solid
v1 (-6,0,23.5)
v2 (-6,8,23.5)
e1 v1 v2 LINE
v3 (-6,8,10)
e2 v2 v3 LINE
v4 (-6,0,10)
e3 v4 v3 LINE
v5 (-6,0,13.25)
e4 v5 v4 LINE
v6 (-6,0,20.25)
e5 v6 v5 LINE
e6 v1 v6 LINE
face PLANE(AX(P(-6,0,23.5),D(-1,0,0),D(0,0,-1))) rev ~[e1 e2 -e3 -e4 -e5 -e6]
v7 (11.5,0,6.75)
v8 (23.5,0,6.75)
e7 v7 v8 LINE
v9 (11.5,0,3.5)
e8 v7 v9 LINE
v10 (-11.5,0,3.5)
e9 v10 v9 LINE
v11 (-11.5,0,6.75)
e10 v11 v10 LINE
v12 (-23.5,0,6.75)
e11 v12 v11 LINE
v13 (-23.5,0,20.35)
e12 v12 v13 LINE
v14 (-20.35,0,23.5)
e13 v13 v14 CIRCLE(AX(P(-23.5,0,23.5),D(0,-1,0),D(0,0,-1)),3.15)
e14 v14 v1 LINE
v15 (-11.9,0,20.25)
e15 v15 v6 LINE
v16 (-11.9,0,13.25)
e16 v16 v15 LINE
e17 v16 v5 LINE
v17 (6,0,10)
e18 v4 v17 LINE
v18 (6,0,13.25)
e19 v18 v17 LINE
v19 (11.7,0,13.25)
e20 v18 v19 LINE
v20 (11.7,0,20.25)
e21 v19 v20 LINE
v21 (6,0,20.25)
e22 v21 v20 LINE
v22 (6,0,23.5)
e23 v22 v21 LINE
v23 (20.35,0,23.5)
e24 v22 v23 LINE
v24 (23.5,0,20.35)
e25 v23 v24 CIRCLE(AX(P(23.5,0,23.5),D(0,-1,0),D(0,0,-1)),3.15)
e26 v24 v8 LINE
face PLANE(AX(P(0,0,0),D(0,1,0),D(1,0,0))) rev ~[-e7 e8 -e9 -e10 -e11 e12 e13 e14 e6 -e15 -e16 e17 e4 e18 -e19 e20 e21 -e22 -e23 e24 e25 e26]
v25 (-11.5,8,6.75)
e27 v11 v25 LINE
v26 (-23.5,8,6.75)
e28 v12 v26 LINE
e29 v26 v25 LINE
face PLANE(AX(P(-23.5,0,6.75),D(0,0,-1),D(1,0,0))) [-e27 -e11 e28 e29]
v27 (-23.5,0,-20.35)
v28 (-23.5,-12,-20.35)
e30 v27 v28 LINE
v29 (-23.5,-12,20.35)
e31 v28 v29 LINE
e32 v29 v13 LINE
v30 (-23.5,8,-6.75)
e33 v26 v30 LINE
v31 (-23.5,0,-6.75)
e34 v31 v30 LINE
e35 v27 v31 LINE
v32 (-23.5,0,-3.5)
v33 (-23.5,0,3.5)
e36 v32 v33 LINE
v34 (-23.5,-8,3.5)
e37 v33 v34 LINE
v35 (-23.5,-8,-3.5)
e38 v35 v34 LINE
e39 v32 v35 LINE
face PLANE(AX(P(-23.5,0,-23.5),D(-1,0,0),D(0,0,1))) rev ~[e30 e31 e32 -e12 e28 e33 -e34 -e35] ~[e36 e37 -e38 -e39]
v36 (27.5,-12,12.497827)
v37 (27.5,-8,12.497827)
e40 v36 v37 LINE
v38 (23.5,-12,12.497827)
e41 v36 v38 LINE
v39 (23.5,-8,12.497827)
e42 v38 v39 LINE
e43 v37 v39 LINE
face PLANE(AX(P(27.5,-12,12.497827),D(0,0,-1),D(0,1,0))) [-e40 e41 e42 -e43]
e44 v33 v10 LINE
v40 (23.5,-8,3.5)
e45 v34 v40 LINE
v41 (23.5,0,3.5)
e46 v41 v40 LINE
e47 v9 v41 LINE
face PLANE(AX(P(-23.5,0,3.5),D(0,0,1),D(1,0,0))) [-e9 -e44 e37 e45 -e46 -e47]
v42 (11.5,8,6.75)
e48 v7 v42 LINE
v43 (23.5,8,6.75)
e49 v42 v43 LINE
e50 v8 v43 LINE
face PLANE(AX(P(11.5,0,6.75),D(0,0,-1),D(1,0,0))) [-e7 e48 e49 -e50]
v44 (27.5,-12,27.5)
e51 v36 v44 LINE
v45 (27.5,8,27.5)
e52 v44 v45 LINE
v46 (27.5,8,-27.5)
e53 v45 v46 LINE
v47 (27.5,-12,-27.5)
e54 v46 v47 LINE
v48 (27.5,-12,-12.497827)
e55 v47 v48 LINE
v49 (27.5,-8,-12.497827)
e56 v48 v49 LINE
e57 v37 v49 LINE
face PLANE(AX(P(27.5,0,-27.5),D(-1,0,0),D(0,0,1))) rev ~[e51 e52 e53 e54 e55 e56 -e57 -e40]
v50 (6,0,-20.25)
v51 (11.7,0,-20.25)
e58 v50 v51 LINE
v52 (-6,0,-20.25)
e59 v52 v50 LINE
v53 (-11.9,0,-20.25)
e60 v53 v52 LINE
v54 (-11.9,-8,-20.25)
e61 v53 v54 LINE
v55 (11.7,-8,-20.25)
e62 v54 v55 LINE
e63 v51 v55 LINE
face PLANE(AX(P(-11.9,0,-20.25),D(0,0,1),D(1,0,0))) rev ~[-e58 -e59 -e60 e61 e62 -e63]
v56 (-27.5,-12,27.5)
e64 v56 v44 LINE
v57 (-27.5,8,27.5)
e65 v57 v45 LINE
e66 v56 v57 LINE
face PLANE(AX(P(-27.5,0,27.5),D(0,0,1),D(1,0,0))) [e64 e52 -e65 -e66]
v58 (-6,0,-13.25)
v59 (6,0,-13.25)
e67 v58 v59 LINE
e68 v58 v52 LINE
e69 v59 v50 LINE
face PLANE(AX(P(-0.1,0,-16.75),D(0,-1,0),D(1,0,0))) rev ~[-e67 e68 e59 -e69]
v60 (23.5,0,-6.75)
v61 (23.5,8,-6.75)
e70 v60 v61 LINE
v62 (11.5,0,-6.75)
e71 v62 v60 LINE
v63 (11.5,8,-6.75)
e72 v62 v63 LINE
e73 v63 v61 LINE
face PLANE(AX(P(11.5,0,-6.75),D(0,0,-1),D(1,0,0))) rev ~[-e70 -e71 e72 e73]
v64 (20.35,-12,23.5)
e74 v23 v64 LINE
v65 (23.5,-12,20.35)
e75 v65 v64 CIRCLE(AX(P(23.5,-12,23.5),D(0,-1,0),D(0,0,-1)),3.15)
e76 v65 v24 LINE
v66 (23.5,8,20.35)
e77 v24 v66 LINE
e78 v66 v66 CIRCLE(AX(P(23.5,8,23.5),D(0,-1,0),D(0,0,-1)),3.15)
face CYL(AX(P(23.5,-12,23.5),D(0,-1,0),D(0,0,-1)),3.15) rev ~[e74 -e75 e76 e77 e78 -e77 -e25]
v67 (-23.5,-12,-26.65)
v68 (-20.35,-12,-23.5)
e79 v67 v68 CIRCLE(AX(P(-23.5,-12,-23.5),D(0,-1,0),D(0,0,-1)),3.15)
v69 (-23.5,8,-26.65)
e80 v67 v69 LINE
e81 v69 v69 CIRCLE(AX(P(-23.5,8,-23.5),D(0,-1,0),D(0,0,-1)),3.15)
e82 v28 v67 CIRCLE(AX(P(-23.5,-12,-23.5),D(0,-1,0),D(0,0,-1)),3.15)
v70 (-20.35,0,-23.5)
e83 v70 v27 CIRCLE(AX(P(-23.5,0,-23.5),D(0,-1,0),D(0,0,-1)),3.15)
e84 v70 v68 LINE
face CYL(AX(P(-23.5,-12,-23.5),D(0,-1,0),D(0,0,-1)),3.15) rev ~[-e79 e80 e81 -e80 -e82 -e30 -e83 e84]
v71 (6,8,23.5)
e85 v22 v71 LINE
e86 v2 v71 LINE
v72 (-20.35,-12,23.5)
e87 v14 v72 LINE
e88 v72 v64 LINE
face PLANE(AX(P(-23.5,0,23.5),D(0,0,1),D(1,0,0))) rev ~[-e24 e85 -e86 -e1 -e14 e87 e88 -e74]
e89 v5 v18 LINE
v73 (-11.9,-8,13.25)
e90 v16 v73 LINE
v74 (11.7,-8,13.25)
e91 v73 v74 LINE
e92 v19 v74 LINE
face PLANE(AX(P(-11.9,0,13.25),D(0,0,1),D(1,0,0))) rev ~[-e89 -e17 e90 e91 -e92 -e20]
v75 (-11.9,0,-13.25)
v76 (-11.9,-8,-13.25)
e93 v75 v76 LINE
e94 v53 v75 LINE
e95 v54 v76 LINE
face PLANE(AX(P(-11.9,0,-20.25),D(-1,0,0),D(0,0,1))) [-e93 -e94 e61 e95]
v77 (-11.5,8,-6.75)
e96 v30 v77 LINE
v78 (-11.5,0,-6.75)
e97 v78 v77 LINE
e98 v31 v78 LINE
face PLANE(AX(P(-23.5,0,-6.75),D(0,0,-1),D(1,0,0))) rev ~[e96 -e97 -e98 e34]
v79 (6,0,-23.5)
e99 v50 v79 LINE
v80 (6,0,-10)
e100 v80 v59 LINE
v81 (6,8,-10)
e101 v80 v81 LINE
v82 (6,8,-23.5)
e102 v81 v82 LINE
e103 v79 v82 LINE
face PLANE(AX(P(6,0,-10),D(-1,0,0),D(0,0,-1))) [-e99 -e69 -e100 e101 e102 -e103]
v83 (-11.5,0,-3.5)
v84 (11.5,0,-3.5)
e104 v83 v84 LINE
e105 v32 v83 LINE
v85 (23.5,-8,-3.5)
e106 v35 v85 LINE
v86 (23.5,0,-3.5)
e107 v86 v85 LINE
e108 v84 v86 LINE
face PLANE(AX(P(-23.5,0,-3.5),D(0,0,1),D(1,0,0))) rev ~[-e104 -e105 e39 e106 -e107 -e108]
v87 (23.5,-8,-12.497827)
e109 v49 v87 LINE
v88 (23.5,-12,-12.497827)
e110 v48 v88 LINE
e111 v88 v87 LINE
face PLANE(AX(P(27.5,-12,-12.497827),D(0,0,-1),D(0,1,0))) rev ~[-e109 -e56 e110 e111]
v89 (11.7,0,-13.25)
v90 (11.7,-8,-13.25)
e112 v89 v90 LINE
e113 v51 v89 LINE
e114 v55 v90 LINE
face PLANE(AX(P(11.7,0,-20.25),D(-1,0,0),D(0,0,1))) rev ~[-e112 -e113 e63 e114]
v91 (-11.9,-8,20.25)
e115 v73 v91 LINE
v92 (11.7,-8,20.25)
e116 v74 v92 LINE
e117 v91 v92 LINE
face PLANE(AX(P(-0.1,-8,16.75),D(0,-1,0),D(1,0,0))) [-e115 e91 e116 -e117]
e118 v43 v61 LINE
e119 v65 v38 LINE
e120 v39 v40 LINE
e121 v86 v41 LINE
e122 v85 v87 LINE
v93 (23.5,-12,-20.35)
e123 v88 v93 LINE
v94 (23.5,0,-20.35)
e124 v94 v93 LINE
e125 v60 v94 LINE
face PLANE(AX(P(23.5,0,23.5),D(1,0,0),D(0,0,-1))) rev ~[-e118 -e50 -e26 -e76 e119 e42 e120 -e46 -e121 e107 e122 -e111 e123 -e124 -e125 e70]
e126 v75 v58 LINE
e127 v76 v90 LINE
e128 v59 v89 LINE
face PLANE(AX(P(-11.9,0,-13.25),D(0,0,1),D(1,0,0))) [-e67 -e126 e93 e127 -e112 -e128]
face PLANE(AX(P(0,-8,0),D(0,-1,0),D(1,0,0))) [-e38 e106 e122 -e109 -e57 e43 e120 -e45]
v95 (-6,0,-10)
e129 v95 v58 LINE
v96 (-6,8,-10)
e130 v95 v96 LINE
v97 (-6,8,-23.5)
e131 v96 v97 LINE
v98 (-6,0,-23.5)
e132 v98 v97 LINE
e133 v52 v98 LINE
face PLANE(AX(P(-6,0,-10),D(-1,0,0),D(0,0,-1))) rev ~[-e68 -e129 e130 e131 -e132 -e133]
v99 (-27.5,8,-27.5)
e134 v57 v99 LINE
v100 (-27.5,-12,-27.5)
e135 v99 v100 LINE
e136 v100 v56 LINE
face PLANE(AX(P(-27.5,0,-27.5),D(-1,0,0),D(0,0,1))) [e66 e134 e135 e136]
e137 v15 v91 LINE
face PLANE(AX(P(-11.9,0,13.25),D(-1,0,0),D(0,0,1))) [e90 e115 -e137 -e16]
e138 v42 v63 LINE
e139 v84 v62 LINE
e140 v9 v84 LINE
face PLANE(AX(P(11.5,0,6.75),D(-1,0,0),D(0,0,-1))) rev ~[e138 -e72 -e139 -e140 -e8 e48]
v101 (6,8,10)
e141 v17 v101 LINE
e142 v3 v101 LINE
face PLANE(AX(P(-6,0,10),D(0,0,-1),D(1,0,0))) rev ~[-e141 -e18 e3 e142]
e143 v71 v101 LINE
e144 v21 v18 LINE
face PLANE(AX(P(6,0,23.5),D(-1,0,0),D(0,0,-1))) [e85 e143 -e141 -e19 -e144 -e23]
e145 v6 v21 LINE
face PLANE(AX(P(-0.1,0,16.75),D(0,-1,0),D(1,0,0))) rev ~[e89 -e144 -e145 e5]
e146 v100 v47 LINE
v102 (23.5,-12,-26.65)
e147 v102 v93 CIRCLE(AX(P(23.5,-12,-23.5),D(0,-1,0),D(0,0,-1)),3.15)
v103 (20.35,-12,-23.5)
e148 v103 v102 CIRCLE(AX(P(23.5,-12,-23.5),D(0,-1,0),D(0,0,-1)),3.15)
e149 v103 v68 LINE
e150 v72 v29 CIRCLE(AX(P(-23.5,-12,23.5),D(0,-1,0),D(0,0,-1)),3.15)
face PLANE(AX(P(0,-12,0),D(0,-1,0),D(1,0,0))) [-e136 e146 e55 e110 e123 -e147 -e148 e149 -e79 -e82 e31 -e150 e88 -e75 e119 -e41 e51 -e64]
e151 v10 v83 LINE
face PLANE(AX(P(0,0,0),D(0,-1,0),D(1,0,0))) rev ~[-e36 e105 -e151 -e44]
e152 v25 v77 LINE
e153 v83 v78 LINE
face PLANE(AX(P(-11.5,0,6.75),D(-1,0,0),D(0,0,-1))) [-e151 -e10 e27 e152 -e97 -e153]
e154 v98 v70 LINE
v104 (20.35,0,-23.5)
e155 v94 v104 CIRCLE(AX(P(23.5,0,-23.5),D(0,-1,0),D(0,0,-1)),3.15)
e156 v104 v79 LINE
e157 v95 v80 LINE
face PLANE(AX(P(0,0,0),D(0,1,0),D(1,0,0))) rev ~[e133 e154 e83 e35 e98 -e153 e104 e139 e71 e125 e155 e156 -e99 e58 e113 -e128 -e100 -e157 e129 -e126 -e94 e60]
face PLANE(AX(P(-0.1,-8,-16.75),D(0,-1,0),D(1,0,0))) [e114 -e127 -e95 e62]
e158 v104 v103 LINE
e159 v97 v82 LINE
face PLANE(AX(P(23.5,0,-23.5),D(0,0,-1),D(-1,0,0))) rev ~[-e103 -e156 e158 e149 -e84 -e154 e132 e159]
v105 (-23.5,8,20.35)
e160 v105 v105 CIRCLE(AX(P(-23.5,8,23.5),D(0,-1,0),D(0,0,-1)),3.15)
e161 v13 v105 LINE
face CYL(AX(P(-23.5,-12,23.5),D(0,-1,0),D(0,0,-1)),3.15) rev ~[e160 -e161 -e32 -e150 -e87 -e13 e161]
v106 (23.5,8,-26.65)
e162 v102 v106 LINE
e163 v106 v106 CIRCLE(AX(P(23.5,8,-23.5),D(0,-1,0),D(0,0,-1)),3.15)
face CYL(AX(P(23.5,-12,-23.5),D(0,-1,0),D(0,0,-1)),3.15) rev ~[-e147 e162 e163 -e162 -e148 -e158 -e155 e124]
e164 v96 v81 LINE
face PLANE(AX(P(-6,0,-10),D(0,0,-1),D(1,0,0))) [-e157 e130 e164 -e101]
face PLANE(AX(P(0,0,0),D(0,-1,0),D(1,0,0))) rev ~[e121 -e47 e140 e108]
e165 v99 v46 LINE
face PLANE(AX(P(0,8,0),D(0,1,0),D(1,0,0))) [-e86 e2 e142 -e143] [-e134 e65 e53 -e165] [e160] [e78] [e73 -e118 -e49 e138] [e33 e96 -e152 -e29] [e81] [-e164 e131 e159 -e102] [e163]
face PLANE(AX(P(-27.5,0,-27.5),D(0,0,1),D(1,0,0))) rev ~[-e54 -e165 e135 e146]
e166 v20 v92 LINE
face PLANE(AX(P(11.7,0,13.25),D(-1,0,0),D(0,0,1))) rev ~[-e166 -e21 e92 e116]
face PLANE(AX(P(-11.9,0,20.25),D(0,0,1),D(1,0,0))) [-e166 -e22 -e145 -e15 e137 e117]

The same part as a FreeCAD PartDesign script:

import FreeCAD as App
import Part
import Sketcher
from FreeCAD import Vector
Q = App.Units.Quantity


def add_polygon(sketch, points):
    """Adds a closed chain of lines whose ends are joined by coincident constraints."""
    first, n = sketch.GeometryCount, len(points)
    for a, b in zip(points, points[1:] + points[:1]):
        sketch.addGeometry(Part.LineSegment(App.Vector(*a, 0), App.Vector(*b, 0)), False)
    for i in range(n):
        sketch.addConstraint(Sketcher.Constraint("Coincident", first + i, 2, first + (i + 1) % n, 1))

doc = App.newDocument("Part")
body = doc.addObject("PartDesign::Body", "Body")

sketch1 = body.newObject("Sketcher::SketchObject", "Sketch")
sketch1.AttachmentSupport = (doc.getObject("XZ_Plane"), [""])
sketch1.MapMode = "FlatFace"
add_polygon(sketch1, [(-27.5, -27.5), (-27.5, 27.5), (27.5, 27.5), (27.5, -27.5)])
add_polygon(sketch1, [(6, 23.5), (-6, 23.5), (-6, 10), (6, 10)])
add_polygon(sketch1, [(-11.5, 6.75), (-23.5, 6.75), (-23.5, -6.75), (-11.5, -6.75)])
add_polygon(sketch1, [(23.5, 6.75), (11.5, 6.75), (11.5, -6.75), (23.5, -6.75)])
add_polygon(sketch1, [(6, -10), (-6, -10), (-6, -23.5), (6, -23.5)])
sketch1.addConstraint(Sketcher.Constraint("Vertical", 0))
sketch1.addConstraint(Sketcher.Constraint("Horizontal", 1))
sketch1.addConstraint(Sketcher.Constraint("Vertical", 2))
sketch1.addConstraint(Sketcher.Constraint("Horizontal", 3))
sketch1.addConstraint(Sketcher.Constraint("Horizontal", 4))
sketch1.addConstraint(Sketcher.Constraint("Vertical", 5))
sketch1.addConstraint(Sketcher.Constraint("Horizontal", 6))
sketch1.addConstraint(Sketcher.Constraint("Vertical", 7))
sketch1.addConstraint(Sketcher.Constraint("Horizontal", 8))
sketch1.addConstraint(Sketcher.Constraint("Vertical", 9))
sketch1.addConstraint(Sketcher.Constraint("Horizontal", 10))
sketch1.addConstraint(Sketcher.Constraint("Vertical", 11))
sketch1.addConstraint(Sketcher.Constraint("Horizontal", 12))
sketch1.addConstraint(Sketcher.Constraint("Vertical", 13))
sketch1.addConstraint(Sketcher.Constraint("Horizontal", 14))
sketch1.addConstraint(Sketcher.Constraint("Vertical", 15))
sketch1.addConstraint(Sketcher.Constraint("Horizontal", 16))
sketch1.addConstraint(Sketcher.Constraint("Vertical", 17))
sketch1.addConstraint(Sketcher.Constraint("Horizontal", 18))
sketch1.addConstraint(Sketcher.Constraint("Vertical", 19))
sketch1.addConstraint(Sketcher.Constraint("Symmetric", 0, 2, 2, 2, -1, 1))
sketch1.addConstraint(Sketcher.Constraint("Symmetric", 10, 2, 12, 2, -1, 1))
sketch1.addConstraint(Sketcher.Constraint("Symmetric", 8, 2, 14, 2, -1, 1))
sketch1.addConstraint(Sketcher.Constraint("Symmetric", 6, 2, 16, 2, -1, 1))
sketch1.addConstraint(Sketcher.Constraint("Symmetric", 4, 2, 18, 2, -1, 1))
sketch1.addConstraint(Sketcher.Constraint("Horizontal", 11, 2, 12, 2))
sketch1.addConstraint(Sketcher.Constraint("Vertical", 5, 2, 16, 2))
sketch1.addConstraint(Sketcher.Constraint("Equal", 6, 8))
sketch1.addConstraint(Sketcher.Constraint("Equal", 3, 0))
sketch1.addConstraint(Sketcher.Constraint("Equal", 7, 9))
sketch1.addConstraint(Sketcher.Constraint("DistanceX", 1, 1, 1, 2, Q("55 mm")))
sketch1.addConstraint(Sketcher.Constraint("DistanceX", 4, 2, 4, 1, Q("12 mm")))
sketch1.addConstraint(Sketcher.Constraint("DistanceY", 5, 2, 5, 1, Q("13.5 mm")))
sketch1.addConstraint(Sketcher.Constraint("DistanceY", -1, 1, 5, 2, Q("10 mm")))
sketch1.addConstraint(Sketcher.Constraint("DistanceX", 0, 2, 8, 2, Q("4 mm")))
pad1 = body.newObject("PartDesign::Pad", "Pad")
pad1.Profile = sketch1
pad1.Length = 8
pad1.Reversed = True

sketch2 = body.newObject("Sketcher::SketchObject", "Sketch001")
sketch2.AttachmentSupport = (doc.getObject("XZ_Plane"), [""])
sketch2.MapMode = "FlatFace"
add_polygon(sketch2, [(-27.5, 27.5), (-27.5, -27.5), (27.5, -27.5), (27.5, 27.5)])
add_polygon(sketch2, [(-23.5, -23.5), (-23.5, 23.5), (23.5, 23.5), (23.5, -23.5)])
sketch2.addConstraint(Sketcher.Constraint("Vertical", 0))
sketch2.addConstraint(Sketcher.Constraint("Horizontal", 1))
sketch2.addConstraint(Sketcher.Constraint("Vertical", 2))
sketch2.addConstraint(Sketcher.Constraint("Horizontal", 3))
sketch2.addConstraint(Sketcher.Constraint("Vertical", 4))
sketch2.addConstraint(Sketcher.Constraint("Horizontal", 5))
sketch2.addConstraint(Sketcher.Constraint("Vertical", 6))
sketch2.addConstraint(Sketcher.Constraint("Horizontal", 7))
sketch2.addConstraint(Sketcher.Constraint("Symmetric", 0, 2, 2, 2, -1, 1))
sketch2.addConstraint(Sketcher.Constraint("Symmetric", 4, 2, 6, 2, -1, 1))
sketch2.addConstraint(Sketcher.Constraint("Equal", 3, 0))
sketch2.addConstraint(Sketcher.Constraint("Equal", 7, 4))
sketch2.addConstraint(Sketcher.Constraint("DistanceX", 1, 1, 1, 2, Q("55 mm")))
sketch2.addConstraint(Sketcher.Constraint("DistanceX", 5, 1, 5, 2, Q("47 mm")))
pad2 = body.newObject("PartDesign::Pad", "Pad001")
pad2.Profile = sketch2
pad2.Length = 12

sketch3 = body.newObject("Sketcher::SketchObject", "Sketch002")
sketch3.AttachmentSupport = (doc.getObject("XZ_Plane"), [""])
sketch3.MapMode = "FlatFace"
add_polygon(sketch3, [(-11.9, 20.25), (-11.9, 13.25), (11.7, 13.25), (11.7, 20.25)])
add_polygon(sketch3, [(-23.5, 3.5), (-23.5, -3.5), (23.5, -3.5), (23.5, 3.5)])
add_polygon(sketch3, [(-11.9, -13.25), (-11.9, -20.25), (11.7, -20.25), (11.7, -13.25)])
sketch3.addConstraint(Sketcher.Constraint("Vertical", 0))
sketch3.addConstraint(Sketcher.Constraint("Horizontal", 1))
sketch3.addConstraint(Sketcher.Constraint("Vertical", 2))
sketch3.addConstraint(Sketcher.Constraint("Horizontal", 3))
sketch3.addConstraint(Sketcher.Constraint("Vertical", 4))
sketch3.addConstraint(Sketcher.Constraint("Horizontal", 5))
sketch3.addConstraint(Sketcher.Constraint("Vertical", 6))
sketch3.addConstraint(Sketcher.Constraint("Horizontal", 7))
sketch3.addConstraint(Sketcher.Constraint("Vertical", 8))
sketch3.addConstraint(Sketcher.Constraint("Horizontal", 9))
sketch3.addConstraint(Sketcher.Constraint("Vertical", 10))
sketch3.addConstraint(Sketcher.Constraint("Horizontal", 11))
sketch3.addConstraint(Sketcher.Constraint("Symmetric", 4, 2, 6, 2, -1, 1))
sketch3.addConstraint(Sketcher.Constraint("Symmetric", 3, 2, 8, 2, -1))
sketch3.addConstraint(Sketcher.Constraint("Symmetric", 1, 2, 10, 2, -1))
sketch3.addConstraint(Sketcher.Constraint("Equal", 2, 4))
sketch3.addConstraint(Sketcher.Constraint("DistanceX", 5, 1, 5, 2, Q("47 mm")))
sketch3.addConstraint(Sketcher.Constraint("DistanceY", 0, 2, 0, 1, Q("7 mm")))
sketch3.addConstraint(Sketcher.Constraint("DistanceX", 1, 1, 1, 2, Q("23.6 mm")))
sketch3.addConstraint(Sketcher.Constraint("DistanceX", 0, 2, -1, 1, Q("11.9 mm")))
sketch3.addConstraint(Sketcher.Constraint("DistanceY", 8, 2, 0, 2, Q("33.5 mm")))
pad3 = body.newObject("PartDesign::Pad", "Pad002")
pad3.Profile = sketch3
pad3.Length = 8

sketch4 = body.newObject("Sketcher::SketchObject", "Sketch003")
sketch4.AttachmentSupport = (doc.getObject("XZ_Plane"), [""])
sketch4.MapMode = "FlatFace"
sketch4.AttachmentOffset = App.Placement(Vector(0, 0, 12), App.Rotation())
sketch4.addGeometry(Part.Circle(Vector(-23.5, 23.5, 0), Vector(0, 0, 1), 3.15), False)
sketch4.addGeometry(Part.Circle(Vector(23.5, 23.5, 0), Vector(0, 0, 1), 3.15), False)
sketch4.addGeometry(Part.Circle(Vector(-23.5, -23.5, 0), Vector(0, 0, 1), 3.15), False)
sketch4.addGeometry(Part.Circle(Vector(23.5, -23.5, 0), Vector(0, 0, 1), 3.15), False)
sketch4.addConstraint(Sketcher.Constraint("Equal", 0, 1))
sketch4.addConstraint(Sketcher.Constraint("Equal", 1, 2))
sketch4.addConstraint(Sketcher.Constraint("Equal", 2, 3))
sketch4.addConstraint(Sketcher.Constraint("Symmetric", 1, 3, 2, 3, -1, 1))
sketch4.addConstraint(Sketcher.Constraint("Symmetric", 0, 3, 3, 3, -1, 1))
sketch4.addConstraint(Sketcher.Constraint("Symmetric", 0, 3, 1, 3, -2))
sketch4.addConstraint(Sketcher.Constraint("Diameter", 0, Q("6.3 mm")))
sketch4.addConstraint(Sketcher.Constraint("DistanceX", 0, 3, 1, 3, Q("47 mm")))
sketch4.addConstraint(Sketcher.Constraint("DistanceY", 2, 3, 0, 3, Q("47 mm")))
pocket1 = body.newObject("PartDesign::Pocket", "Pocket")
pocket1.Profile = sketch4
pocket1.Type = "ThroughAll"

sketch5 = body.newObject("Sketcher::SketchObject", "Sketch004")
sketch5.AttachmentSupport = (doc.getObject("YZ_Plane"), [""])
sketch5.MapMode = "FlatFace"
sketch5.AttachmentOffset = App.Placement(Vector(0, 0, 27.5), App.Rotation())
add_polygon(sketch5, [(-8, 12.497827), (-12, 12.497827), (-12, -12.497827), (-8, -12.497827)])
sketch5.addConstraint(Sketcher.Constraint("Horizontal", 0))
sketch5.addConstraint(Sketcher.Constraint("Vertical", 1))
sketch5.addConstraint(Sketcher.Constraint("Horizontal", 2))
sketch5.addConstraint(Sketcher.Constraint("Vertical", 3))
sketch5.addConstraint(Sketcher.Constraint("DistanceX", 0, 2, 0, 1, Q("4 mm")))
sketch5.addConstraint(Sketcher.Constraint("DistanceX", 0, 2, -1, 1, Q("12 mm")))
sketch5.addConstraint(Sketcher.Constraint("DistanceY", 1, 2, 1, 1, Q("24.995653 mm")))
sketch5.addConstraint(Sketcher.Constraint("DistanceY", -1, 1, 0, 2, Q("12.497827 mm")))
pocket2 = body.newObject("PartDesign::Pocket", "Pocket001")
pocket2.Profile = sketch5
pocket2.Length = 4

doc.recompute()
